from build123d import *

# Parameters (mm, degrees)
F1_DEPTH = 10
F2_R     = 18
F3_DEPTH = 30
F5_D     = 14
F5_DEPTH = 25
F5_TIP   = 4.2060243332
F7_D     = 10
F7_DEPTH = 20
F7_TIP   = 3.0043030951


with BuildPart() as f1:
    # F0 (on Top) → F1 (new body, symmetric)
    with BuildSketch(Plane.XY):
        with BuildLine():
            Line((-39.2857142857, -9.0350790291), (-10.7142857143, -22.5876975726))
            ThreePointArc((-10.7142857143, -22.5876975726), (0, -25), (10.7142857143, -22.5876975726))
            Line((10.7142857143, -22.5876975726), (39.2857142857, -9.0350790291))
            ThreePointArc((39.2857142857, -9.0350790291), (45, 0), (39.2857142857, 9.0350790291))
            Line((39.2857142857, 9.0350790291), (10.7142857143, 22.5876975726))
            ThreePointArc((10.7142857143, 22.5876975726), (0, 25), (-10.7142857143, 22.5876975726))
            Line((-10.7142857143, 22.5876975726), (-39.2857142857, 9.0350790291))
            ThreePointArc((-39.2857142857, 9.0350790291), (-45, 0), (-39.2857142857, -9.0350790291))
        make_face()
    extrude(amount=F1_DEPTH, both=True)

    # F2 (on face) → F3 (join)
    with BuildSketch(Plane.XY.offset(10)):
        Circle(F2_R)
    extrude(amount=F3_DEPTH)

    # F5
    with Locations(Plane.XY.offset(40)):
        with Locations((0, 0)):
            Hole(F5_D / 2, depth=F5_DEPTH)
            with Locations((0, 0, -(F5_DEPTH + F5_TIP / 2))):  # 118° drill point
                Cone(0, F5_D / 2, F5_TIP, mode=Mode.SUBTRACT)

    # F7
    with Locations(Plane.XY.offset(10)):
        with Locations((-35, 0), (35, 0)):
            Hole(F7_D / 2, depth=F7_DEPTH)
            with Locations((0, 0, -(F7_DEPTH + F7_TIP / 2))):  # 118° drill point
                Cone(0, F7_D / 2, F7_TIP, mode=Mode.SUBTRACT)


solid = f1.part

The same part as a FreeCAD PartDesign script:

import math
import FreeCAD as App
import Part
import Sketcher
Q = App.Units.Quantity

doc = App.newDocument("Part")
body = doc.addObject("PartDesign::Body", "Body")

sketch1 = body.newObject("Sketcher::SketchObject", "Sketch")
sketch1.AttachmentSupport = (doc.getObject("XY_Plane"), [""])
sketch1.MapMode = "FlatFace"
sketch1.addGeometry(Part.LineSegment(App.Vector(-39, -9, 0), App.Vector(-11, -23, 0)), False)
sketch1.addGeometry(Part.ArcOfCircle(Part.Circle(App.Vector(0, 0, 0), App.Vector(0, 0, 1), 25), math.radians(-115), math.radians(-65)), False)
sketch1.addGeometry(Part.LineSegment(App.Vector(11, -23, 0), App.Vector(39, -9, 0)), False)
sketch1.addGeometry(Part.ArcOfCircle(Part.Circle(App.Vector(35, 0, 0), App.Vector(0, 0, 1), 10), math.radians(-65), math.radians(65)), False)
sketch1.addGeometry(Part.LineSegment(App.Vector(39, 9, 0), App.Vector(11, 23, 0)), False)
sketch1.addGeometry(Part.ArcOfCircle(Part.Circle(App.Vector(0, 0, 0), App.Vector(0, 0, 1), 25), math.radians(65), math.radians(115)), False)
sketch1.addGeometry(Part.LineSegment(App.Vector(-11, 23, 0), App.Vector(-39, 9, 0)), False)
sketch1.addGeometry(Part.ArcOfCircle(Part.Circle(App.Vector(-35, 0, 0), App.Vector(0, 0, 1), 10), math.radians(115), math.radians(245)), False)
sketch1.addConstraint(Sketcher.Constraint("Tangent", 0, 2, 1, 1))
sketch1.addConstraint(Sketcher.Constraint("Tangent", 1, 2, 2, 1))
sketch1.addConstraint(Sketcher.Constraint("Tangent", 2, 2, 3, 1))
sketch1.addConstraint(Sketcher.Constraint("Tangent", 3, 2, 4, 1))
sketch1.addConstraint(Sketcher.Constraint("Tangent", 4, 2, 5, 1))
sketch1.addConstraint(Sketcher.Constraint("Tangent", 5, 2, 6, 1))
sketch1.addConstraint(Sketcher.Constraint("Tangent", 6, 2, 7, 1))
sketch1.addConstraint(Sketcher.Constraint("Tangent", 7, 2, 0, 1))
sketch1.addConstraint(Sketcher.Constraint("Coincident", 1, 3, -1, 1))
sketch1.addConstraint(Sketcher.Constraint("Coincident", 5, 3, -1, 1))
sketch1.addConstraint(Sketcher.Constraint("Equal", 1, 5))
sketch1.addConstraint(Sketcher.Constraint("Equal", 3, 7))
sketch1.addConstraint(Sketcher.Constraint("Symmetric", 3, 3, 7, 3, -1, 1))
sketch1.addConstraint(Sketcher.Constraint("PointOnObject", 3, 3, -1))
sketch1.addConstraint(Sketcher.Constraint("Radius", 1, Q("25 mm")))
sketch1.addConstraint(Sketcher.Constraint("Radius", 3, Q("10 mm")))
sketch1.addConstraint(Sketcher.Constraint("DistanceX", -1, 1, 3, 3, Q("35 mm")))
pad1 = body.newObject("PartDesign::Pad", "Pad")
pad1.Profile = sketch1
pad1.Length = 20
pad1.Midplane = True

sketch2 = body.newObject("Sketcher::SketchObject", "Sketch001")
sketch2.AttachmentSupport = (doc.getObject("XY_Plane"), [""])
sketch2.MapMode = "FlatFace"
sketch2.AttachmentOffset = App.Placement(App.Vector(0, 0, 10), App.Rotation())
sketch2.addGeometry(Part.Circle(App.Vector(0, 0, 0), App.Vector(0, 0, 1), 18), False)
sketch2.addConstraint(Sketcher.Constraint("Coincident", 0, 3, -1, 1))
sketch2.addConstraint(Sketcher.Constraint("Diameter", 0, Q("36 mm")))
pad2 = body.newObject("PartDesign::Pad", "Pad001")
pad2.Profile = sketch2
pad2.Length = 30

sketch3 = body.newObject("Sketcher::SketchObject", "Sketch002")
sketch3.AttachmentSupport = (doc.getObject("XY_Plane"), [""])
sketch3.MapMode = "FlatFace"
sketch3.AttachmentOffset = App.Placement(App.Vector(0, 0, 40), App.Rotation())
sketch3.addGeometry(Part.Circle(App.Vector(0, 0, 0), App.Vector(0, 0, 1), 7), False)
sketch3.addConstraint(Sketcher.Constraint("Coincident", 0, 3, -1, 1))
sketch3.addConstraint(Sketcher.Constraint("Diameter", 0, Q("14 mm")))
doc.recompute()
hole = body.newObject("PartDesign::Hole", "Hole")
hole.Profile = sketch3
hole.ThreadType = "None"
hole.Diameter = 14
hole.DepthType = "Dimension"
hole.Depth = 25
hole.DrillPoint = "Angled"
hole.DrillPointAngle = 118

sketch4 = body.newObject("Sketcher::SketchObject", "Sketch003")
sketch4.AttachmentSupport = (doc.getObject("XY_Plane"), [""])
sketch4.MapMode = "FlatFace"
sketch4.AttachmentOffset = App.Placement(App.Vector(0, 0, 10), App.Rotation())
sketch4.addGeometry(Part.Circle(App.Vector(-35, 0, 0), App.Vector(0, 0, 1), 5), False)
sketch4.addGeometry(Part.Circle(App.Vector(35, 0, 0), App.Vector(0, 0, 1), 5), False)
sketch4.addConstraint(Sketcher.Constraint("Equal", 0, 1))
sketch4.addConstraint(Sketcher.Constraint("Symmetric", 0, 3, 1, 3, -1, 1))
sketch4.addConstraint(Sketcher.Constraint("PointOnObject", 0, 3, -1))
sketch4.addConstraint(Sketcher.Constraint("Diameter", 0, Q("10 mm")))
sketch4.addConstraint(Sketcher.Constraint("DistanceX", 0, 3, -1, 1, Q("35 mm")))
doc.recompute()
hole2 = body.newObject("PartDesign::Hole", "Hole001")
hole2.Profile = sketch4
hole2.ThreadType = "None"
hole2.Diameter = 10
hole2.DepthType = "Dimension"
hole2.Depth = 20
hole2.DrillPoint = "Angled"
hole2.DrillPointAngle = 118

doc.recompute()
